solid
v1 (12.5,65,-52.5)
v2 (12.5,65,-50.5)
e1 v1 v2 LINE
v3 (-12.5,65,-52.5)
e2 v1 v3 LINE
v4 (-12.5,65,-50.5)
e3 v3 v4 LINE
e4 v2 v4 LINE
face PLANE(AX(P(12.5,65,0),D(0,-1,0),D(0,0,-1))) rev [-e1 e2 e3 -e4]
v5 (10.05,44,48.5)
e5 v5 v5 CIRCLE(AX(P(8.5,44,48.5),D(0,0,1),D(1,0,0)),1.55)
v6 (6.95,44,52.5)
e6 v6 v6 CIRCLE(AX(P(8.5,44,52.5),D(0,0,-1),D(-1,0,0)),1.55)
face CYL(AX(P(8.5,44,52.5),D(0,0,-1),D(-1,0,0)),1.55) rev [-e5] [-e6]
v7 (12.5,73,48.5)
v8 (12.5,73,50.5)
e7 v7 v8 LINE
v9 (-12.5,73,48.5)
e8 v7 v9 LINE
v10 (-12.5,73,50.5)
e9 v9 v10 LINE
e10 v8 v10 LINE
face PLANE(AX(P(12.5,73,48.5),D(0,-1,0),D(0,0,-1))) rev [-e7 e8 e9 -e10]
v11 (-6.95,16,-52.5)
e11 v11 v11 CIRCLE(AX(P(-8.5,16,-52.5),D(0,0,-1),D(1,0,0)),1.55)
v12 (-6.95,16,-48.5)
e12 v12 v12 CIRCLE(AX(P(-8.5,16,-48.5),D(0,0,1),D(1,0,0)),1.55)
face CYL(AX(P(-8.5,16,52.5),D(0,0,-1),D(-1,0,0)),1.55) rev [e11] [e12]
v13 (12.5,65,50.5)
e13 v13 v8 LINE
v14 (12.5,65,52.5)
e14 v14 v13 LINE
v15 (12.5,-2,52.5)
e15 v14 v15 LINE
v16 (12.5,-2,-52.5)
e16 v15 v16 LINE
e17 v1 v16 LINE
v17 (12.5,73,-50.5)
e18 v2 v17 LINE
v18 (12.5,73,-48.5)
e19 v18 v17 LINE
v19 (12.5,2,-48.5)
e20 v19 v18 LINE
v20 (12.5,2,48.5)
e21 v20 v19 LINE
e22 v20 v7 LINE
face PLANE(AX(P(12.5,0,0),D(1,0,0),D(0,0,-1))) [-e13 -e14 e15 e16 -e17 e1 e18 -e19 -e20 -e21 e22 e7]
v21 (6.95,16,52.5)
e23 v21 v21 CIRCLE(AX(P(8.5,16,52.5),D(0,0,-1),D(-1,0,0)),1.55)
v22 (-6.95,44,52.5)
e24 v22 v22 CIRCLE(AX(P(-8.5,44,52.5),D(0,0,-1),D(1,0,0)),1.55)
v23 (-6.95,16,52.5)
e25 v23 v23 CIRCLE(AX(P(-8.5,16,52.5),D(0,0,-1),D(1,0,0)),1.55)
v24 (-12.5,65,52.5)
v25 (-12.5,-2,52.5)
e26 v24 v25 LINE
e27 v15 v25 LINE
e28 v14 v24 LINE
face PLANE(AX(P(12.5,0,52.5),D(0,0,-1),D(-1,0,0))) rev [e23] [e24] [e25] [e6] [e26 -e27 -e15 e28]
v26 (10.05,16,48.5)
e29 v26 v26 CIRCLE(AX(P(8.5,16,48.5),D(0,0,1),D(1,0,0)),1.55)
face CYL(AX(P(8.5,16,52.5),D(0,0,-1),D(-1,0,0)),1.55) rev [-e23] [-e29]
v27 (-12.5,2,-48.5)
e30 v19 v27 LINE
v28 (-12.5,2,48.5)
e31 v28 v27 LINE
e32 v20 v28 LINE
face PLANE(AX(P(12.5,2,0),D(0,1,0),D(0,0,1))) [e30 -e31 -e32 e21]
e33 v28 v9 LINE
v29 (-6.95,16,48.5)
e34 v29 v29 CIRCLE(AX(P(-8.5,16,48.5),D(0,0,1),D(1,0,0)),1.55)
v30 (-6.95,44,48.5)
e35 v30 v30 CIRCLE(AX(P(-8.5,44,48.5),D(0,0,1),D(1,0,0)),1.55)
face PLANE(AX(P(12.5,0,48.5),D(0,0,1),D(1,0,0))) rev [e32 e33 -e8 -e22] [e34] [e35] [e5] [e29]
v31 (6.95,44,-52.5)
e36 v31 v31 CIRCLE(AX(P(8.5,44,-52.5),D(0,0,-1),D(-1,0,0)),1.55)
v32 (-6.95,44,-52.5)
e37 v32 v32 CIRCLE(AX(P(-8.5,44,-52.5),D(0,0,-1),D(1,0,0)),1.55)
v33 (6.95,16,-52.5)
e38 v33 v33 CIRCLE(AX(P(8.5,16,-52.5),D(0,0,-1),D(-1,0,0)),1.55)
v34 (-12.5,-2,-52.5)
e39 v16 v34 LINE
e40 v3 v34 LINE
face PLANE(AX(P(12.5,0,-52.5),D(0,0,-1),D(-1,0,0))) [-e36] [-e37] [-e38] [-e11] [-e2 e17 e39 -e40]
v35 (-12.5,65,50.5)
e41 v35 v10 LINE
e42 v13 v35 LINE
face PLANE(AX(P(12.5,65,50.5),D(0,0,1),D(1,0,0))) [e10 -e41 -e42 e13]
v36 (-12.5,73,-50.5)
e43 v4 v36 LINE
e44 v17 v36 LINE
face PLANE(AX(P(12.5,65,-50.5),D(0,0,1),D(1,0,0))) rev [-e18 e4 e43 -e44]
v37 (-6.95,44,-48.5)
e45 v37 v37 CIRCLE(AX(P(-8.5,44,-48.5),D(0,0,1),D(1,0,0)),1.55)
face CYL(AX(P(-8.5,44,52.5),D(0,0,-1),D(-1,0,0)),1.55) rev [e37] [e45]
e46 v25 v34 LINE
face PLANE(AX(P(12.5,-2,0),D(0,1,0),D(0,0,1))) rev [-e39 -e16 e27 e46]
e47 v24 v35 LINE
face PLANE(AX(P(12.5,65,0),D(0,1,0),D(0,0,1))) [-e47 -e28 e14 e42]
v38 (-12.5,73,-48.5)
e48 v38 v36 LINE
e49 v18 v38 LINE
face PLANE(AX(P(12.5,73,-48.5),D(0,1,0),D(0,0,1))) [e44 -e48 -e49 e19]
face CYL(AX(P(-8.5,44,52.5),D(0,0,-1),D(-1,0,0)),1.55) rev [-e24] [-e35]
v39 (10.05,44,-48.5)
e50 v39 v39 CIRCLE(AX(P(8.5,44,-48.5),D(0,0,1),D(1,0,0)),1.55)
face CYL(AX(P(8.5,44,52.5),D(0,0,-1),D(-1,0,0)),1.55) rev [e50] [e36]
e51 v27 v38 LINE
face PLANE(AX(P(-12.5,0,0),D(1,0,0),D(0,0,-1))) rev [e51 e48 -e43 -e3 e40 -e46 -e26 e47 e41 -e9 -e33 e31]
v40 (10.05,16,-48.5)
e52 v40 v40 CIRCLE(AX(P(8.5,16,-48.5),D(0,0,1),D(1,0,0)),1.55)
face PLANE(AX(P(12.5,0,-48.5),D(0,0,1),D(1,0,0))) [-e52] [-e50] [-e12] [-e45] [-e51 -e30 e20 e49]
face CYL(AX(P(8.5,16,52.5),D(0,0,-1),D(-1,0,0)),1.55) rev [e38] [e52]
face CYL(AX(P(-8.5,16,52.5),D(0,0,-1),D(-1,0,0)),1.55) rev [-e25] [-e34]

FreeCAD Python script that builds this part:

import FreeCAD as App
import Part
import Sketcher
from FreeCAD import Vector


def add_polygon(sketch, points):
    """Adds a closed chain of lines whose ends are joined by coincident constraints."""
    first, n = sketch.GeometryCount, len(points)
    for a, b in zip(points, points[1:] + points[:1]):
        sketch.addGeometry(Part.LineSegment(App.Vector(*a, 0), App.Vector(*b, 0)), False)
    for i in range(n):
        sketch.addConstraint(Sketcher.Constraint("Coincident", first + i, 2, first + (i + 1) % n, 1))

doc = App.newDocument("Part")
body = doc.addObject("PartDesign::Body", "Body")

# Sketch on YZ plane
sketch1 = doc.addObject("Sketcher::SketchObject", "Sketch")
body.addObject(sketch1)
sketch1.AttachmentSupport = (doc.YZ_Plane, [""])
sketch1.MapMode = "FlatFace"
add_polygon(sketch1, [(-2, 52.5), (-2, -52.5), (65, -52.5), (65, -50.5), (73, -50.5), (73, -48.5), (2, -48.5), (2, 48.5), (73, 48.5), (73, 50.5), (65, 50.5), (65, 52.5)])  # lines 0-11
sketch1.addConstraint(Sketcher.Constraint("Vertical", 0))
sketch1.addConstraint(Sketcher.Constraint("Horizontal", 1))
sketch1.addConstraint(Sketcher.Constraint("Vertical", 2))
sketch1.addConstraint(Sketcher.Constraint("Horizontal", 3))
sketch1.addConstraint(Sketcher.Constraint("Vertical", 4))
sketch1.addConstraint(Sketcher.Constraint("Horizontal", 5))
sketch1.addConstraint(Sketcher.Constraint("Vertical", 6))
sketch1.addConstraint(Sketcher.Constraint("Horizontal", 7))
sketch1.addConstraint(Sketcher.Constraint("Vertical", 8))
sketch1.addConstraint(Sketcher.Constraint("Horizontal", 9))
sketch1.addConstraint(Sketcher.Constraint("Vertical", 10))
sketch1.addConstraint(Sketcher.Constraint("Horizontal", 11))
sketch1.addConstraint(Sketcher.Constraint("Symmetric", 4, 2, 7, 2, -1))
sketch1.addConstraint(Sketcher.Constraint("Symmetric", 2, 2, 9, 2, -1))
sketch1.addConstraint(Sketcher.Constraint("Equal", 2, 4))
sketch1.addConstraint(Sketcher.Constraint("Equal", 8, 10))
sketch1.addConstraint(Sketcher.Constraint("DistanceX", 1, 1, 1, 2, 67.0))
sketch1.addConstraint(Sketcher.Constraint("DistanceX", 3, 1, 3, 2, 8.0))
sketch1.addConstraint(Sketcher.Constraint("DistanceX", 5, 2, 5, 1, 71.0))
sketch1.addConstraint(Sketcher.Constraint("DistanceY", 0, 2, 0, 1, 105.0))
sketch1.addConstraint(Sketcher.Constraint("DistanceY", 2, 1, 2, 2, 2.0))
sketch1.addConstraint(Sketcher.Constraint("DistanceX", 0, 2, -1, 1, 2.0))
pad1 = doc.addObject("PartDesign::Pad", "Pad")
body.addObject(pad1)
pad1.Profile = sketch1
pad1.Length = 25
pad1.Midplane = True

# Sketch on XY plane
sketch2 = doc.addObject("Sketcher::SketchObject", "Sketch001")
body.addObject(sketch2)
sketch2.AttachmentSupport = (doc.XY_Plane, [""])
sketch2.MapMode = "FlatFace"
sketch2.AttachmentOffset = App.Placement(Vector(0, 0, 48.5), App.Rotation())
sketch2.addGeometry(Part.Circle(Vector(8.5, 16, 0), Vector(0, 0, 1), 1.55), False)
sketch2.addGeometry(Part.Circle(Vector(8.5, 44, 0), Vector(0, 0, 1), 1.55), False)
sketch2.addGeometry(Part.Circle(Vector(-8.5, 16, 0), Vector(0, 0, 1), 1.55), False)
sketch2.addGeometry(Part.Circle(Vector(-8.5, 44, 0), Vector(0, 0, 1), 1.55), False)
sketch2.addConstraint(Sketcher.Constraint("Equal", 0, 1))
sketch2.addConstraint(Sketcher.Constraint("Equal", 1, 2))
sketch2.addConstraint(Sketcher.Constraint("Equal", 2, 3))
sketch2.addConstraint(Sketcher.Constraint("Symmetric", 0, 3, 2, 3, -2))
sketch2.addConstraint(Sketcher.Constraint("Symmetric", 1, 3, 3, 3, -2))
sketch2.addConstraint(Sketcher.Constraint("Vertical", 0, 3, 1, 3))
sketch2.addConstraint(Sketcher.Constraint("Diameter", 0, 3.1))
sketch2.addConstraint(Sketcher.Constraint("DistanceY", -1, 1, 0, 3, 16.0))
sketch2.addConstraint(Sketcher.Constraint("DistanceY", -1, 1, 1, 3, 44.0))
sketch2.addConstraint(Sketcher.Constraint("DistanceX", 2, 3, 0, 3, 17.0))
pocket1 = doc.addObject("PartDesign::Pocket", "Pocket")
body.addObject(pocket1)
pocket1.Profile = sketch2
pocket1.Type = "ThroughAll"
pocket1.Midplane = True

doc.recompute()
